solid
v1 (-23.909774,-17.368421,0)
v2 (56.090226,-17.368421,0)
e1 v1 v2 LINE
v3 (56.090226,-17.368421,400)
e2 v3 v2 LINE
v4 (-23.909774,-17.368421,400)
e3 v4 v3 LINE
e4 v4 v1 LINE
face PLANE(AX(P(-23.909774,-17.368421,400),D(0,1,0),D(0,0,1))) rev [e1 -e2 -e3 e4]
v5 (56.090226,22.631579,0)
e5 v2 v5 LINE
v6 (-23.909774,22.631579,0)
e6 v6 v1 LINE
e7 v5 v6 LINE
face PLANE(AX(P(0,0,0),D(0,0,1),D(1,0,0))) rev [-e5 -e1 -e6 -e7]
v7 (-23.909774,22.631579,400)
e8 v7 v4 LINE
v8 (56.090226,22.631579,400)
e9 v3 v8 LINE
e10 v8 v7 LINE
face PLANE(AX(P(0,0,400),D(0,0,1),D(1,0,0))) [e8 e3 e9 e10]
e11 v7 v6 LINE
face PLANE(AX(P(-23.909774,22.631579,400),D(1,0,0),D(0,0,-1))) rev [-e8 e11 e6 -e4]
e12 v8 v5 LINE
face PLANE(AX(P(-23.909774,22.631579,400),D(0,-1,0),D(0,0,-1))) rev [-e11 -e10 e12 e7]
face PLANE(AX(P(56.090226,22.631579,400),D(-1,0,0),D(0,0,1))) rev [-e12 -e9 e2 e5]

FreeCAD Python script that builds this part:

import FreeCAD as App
import Part
import Sketcher

V = App.Vector
Q = App.Units.Quantity

doc = App.newDocument("Part")
body = doc.addObject("PartDesign::Body", "Body")

sketch1 = body.newObject("Sketcher::SketchObject", "Sketch")
sketch1.AttachmentSupport = (doc.getObject("XY_Plane"), [""])
sketch1.MapMode = "FlatFace"
sketch1.addGeometry([
    Part.LineSegment(V(-23.909774, 22.631579, 0), V(-23.909774, -17.368421, 0)),
    Part.LineSegment(V(-23.909774, -17.368421, 0), V(56.090226, -17.368421, 0)),
    Part.LineSegment(V(56.090226, -17.368421, 0), V(56.090226, 22.631579, 0)),
    Part.LineSegment(V(56.090226, 22.631579, 0), V(-23.909774, 22.631579, 0)),
], False)
sketch1.addConstraint([
    Sketcher.Constraint("Coincident", 0, 2, 1, 1),
    Sketcher.Constraint("Coincident", 1, 2, 2, 1),
    Sketcher.Constraint("Coincident", 2, 2, 3, 1),
    Sketcher.Constraint("Coincident", 3, 2, 0, 1),
    Sketcher.Constraint("Vertical", 0),
    Sketcher.Constraint("Horizontal", 1),
    Sketcher.Constraint("Vertical", 2),
    Sketcher.Constraint("Horizontal", 3),
    Sketcher.Constraint("DistanceX", 1, 1, 1, 2, Q("80 mm")),
    Sketcher.Constraint("DistanceY", 0, 2, 0, 1, Q("40 mm")),
    Sketcher.Constraint("DistanceY", 0, 2, -1, 1, Q("17.368421 mm")),
    Sketcher.Constraint("DistanceX", 0, 2, -1, 1, Q("23.909774 mm")),
])
pad1 = body.newObject("PartDesign::Pad", "Pad")
pad1.Profile = sketch1
pad1.Length = 400

doc.recompute()
